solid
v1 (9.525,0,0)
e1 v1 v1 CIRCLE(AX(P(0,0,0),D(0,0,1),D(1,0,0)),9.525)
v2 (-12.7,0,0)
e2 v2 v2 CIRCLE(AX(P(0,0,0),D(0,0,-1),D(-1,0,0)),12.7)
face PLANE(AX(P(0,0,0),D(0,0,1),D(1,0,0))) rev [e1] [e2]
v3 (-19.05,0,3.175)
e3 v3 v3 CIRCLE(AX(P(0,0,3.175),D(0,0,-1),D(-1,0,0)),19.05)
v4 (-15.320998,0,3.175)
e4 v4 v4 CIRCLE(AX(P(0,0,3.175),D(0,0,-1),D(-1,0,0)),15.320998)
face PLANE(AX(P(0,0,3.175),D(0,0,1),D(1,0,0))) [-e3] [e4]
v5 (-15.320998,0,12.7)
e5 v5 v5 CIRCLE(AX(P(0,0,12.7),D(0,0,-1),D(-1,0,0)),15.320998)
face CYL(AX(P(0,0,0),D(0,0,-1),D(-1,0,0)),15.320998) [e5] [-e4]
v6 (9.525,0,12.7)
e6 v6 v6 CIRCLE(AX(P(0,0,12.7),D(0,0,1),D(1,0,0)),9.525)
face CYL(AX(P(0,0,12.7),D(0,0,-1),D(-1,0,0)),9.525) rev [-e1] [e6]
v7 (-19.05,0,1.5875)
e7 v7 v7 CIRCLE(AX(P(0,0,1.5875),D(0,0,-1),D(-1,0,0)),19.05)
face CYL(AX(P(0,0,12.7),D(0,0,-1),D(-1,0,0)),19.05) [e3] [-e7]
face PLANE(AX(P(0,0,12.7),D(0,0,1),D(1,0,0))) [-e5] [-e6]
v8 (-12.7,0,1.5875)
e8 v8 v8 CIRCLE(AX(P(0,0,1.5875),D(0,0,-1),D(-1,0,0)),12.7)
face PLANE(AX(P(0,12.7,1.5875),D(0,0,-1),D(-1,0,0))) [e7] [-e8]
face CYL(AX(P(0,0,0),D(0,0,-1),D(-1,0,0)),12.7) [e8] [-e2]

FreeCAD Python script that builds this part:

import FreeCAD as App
import Part
import Sketcher
from FreeCAD import Vector
Q = App.Units.Quantity


def add_polygon(sketch, points):
    """Adds a closed chain of lines whose ends are joined by coincident constraints."""
    first, n = sketch.GeometryCount, len(points)
    for a, b in zip(points, points[1:] + points[:1]):
        sketch.addGeometry(Part.LineSegment(App.Vector(*a, 0), App.Vector(*b, 0)), False)
    for i in range(n):
        sketch.addConstraint(Sketcher.Constraint("Coincident", first + i, 2, first + (i + 1) % n, 1))

doc = App.newDocument("Part")
body = doc.addObject("PartDesign::Body", "Body")

# Sketch on XY plane
sketch1 = doc.addObject("Sketcher::SketchObject", "Sketch")
body.addObject(sketch1)
sketch1.AttachmentSupport = (doc.XY_Plane, [""])
sketch1.MapMode = "FlatFace"
sketch1.addGeometry(Part.Circle(Vector(0, 0, 0), Vector(0, 0, 1), 19), False)
sketch1.addGeometry(Part.Circle(Vector(0, 0, 0), Vector(0, 0, 1), 10), False)
sketch1.addConstraint(Sketcher.Constraint("Coincident", 0, 3, -1, 1))
sketch1.addConstraint(Sketcher.Constraint("Coincident", 1, 3, -1, 1))
sketch1.addConstraint(Sketcher.Constraint("Diameter", 0, Q("1.5 in")))
sketch1.addConstraint(Sketcher.Constraint("Diameter", 1, Q("0.75 in")))
pad1 = doc.addObject("PartDesign::Pad", "Pad")
body.addObject(pad1)
pad1.Profile = sketch1
pad1.Length = Q("0.5 in")

# Sketch on YZ plane
sketch2 = doc.addObject("Sketcher::SketchObject", "Sketch001")
body.addObject(sketch2)
sketch2.AttachmentSupport = (doc.YZ_Plane, [""])
sketch2.MapMode = "FlatFace"
add_polygon(sketch2, [(19.1, 12.7), (15.3, 12.7), (15.3, 3.2), (19.1, 3.2)])  # lines 0-3
add_polygon(sketch2, [(19.1, 1.6), (12.7, 1.6), (12.7, 0), (19.1, 0)])  # lines 4-7
sketch2.addConstraint(Sketcher.Constraint("Horizontal", 0))
sketch2.addConstraint(Sketcher.Constraint("Vertical", 1))
sketch2.addConstraint(Sketcher.Constraint("Horizontal", 2))
sketch2.addConstraint(Sketcher.Constraint("Vertical", 3))
sketch2.addConstraint(Sketcher.Constraint("Horizontal", 4))
sketch2.addConstraint(Sketcher.Constraint("Vertical", 5))
sketch2.addConstraint(Sketcher.Constraint("Horizontal", 6))
sketch2.addConstraint(Sketcher.Constraint("Vertical", 7))
sketch2.addConstraint(Sketcher.Constraint("PointOnObject", 5, 2, -1))
sketch2.addConstraint(Sketcher.Constraint("Vertical", 3, 2, 6, 2))
sketch2.addConstraint(Sketcher.Constraint("DistanceX", 4, 2, 4, 1, Q("0.25 in")))
sketch2.addConstraint(Sketcher.Constraint("DistanceY", -1, 1, 0, 2, Q("0.5 in")))
sketch2.addConstraint(Sketcher.Constraint("DistanceX", -1, 1, 4, 2, Q("0.5 in")))
sketch2.addConstraint(Sketcher.Constraint("DistanceY", 1, 2, 1, 1, Q("0.375 in")))
sketch2.addConstraint(Sketcher.Constraint("DistanceY", 5, 2, 5, 1, Q("0.0625 in")))
sketch2.addConstraint(Sketcher.Constraint("DistanceX", 0, 2, 0, 1, Q("3.729002 mm")))
groove = doc.addObject("PartDesign::Groove", "Groove")
body.addObject(groove)
groove.Profile = sketch2
groove.ReferenceAxis = (sketch2, ["V_Axis"])
groove.Angle = 360

doc.recompute()
